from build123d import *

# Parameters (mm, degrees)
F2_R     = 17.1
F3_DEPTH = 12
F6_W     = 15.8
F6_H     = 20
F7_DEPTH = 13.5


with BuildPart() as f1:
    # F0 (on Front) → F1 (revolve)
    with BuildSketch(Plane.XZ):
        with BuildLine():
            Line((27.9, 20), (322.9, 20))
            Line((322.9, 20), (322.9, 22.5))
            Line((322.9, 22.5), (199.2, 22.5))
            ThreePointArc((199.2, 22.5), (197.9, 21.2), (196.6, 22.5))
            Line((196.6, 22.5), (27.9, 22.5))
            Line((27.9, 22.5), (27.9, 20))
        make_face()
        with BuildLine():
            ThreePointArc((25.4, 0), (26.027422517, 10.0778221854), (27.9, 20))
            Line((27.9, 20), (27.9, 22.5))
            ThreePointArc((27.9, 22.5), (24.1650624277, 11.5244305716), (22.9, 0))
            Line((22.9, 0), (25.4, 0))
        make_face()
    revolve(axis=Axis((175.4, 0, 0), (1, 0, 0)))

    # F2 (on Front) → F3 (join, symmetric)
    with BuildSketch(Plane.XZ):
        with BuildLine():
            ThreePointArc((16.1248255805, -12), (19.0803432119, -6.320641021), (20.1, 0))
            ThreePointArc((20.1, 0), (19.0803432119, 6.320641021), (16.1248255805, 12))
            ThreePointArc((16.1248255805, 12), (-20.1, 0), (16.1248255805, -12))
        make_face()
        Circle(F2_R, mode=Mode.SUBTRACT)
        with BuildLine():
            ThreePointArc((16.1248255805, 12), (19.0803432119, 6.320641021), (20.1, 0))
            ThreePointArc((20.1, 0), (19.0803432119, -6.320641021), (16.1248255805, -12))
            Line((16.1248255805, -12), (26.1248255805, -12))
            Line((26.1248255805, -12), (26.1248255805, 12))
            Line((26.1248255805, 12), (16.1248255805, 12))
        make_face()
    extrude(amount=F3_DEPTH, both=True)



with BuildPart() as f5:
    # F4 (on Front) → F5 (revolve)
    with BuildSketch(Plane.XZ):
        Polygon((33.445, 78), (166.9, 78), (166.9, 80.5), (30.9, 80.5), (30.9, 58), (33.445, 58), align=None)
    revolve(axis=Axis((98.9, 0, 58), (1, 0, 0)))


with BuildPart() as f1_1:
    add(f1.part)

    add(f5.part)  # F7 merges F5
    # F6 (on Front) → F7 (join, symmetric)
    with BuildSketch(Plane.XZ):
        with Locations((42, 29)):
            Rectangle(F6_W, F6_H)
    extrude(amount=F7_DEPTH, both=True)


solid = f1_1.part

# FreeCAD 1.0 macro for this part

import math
import FreeCAD as App
import Part
import Sketcher

doc = App.newDocument("Part")
params = doc.addObject("Spreadsheet::Sheet", "Params")
for row, (alias, value) in enumerate([
    ("sketch1_radius", "1.3 mm"),
    ("sketch1_width", "295 mm"),
    ("sketch1_radius2", "81.25 mm"),
    ("sketch1_width2", "123.7 mm"),
    ("sketch1_width3", "2.5 mm"),
    ("revolution_angle", "360 deg"),
    ("sketch2_diameter", "34.2 mm"),
    ("sketch2_radius", "20.1 mm"),
    ("sketch2_width", "10 mm"),
    ("sketch2_height", "24 mm"),
    ("pad1_length", "24 mm"),
    ("sketch3_width", "136 mm"),
    ("sketch3_height", "20 mm"),
    ("sketch3_height2", "2.5 mm"),
    ("revolution2_angle", "360 deg"),
    ("sketch4_height", "20 mm"),
    ("sketch4_width", "15.8 mm"),
    ("pad2_length", "27 mm"),
], start=1):
    params.set(f"A{row}", alias)
    params.set(f"B{row}", "=" + value)
    params.setAlias(f"B{row}", alias)

body = doc.addObject("PartDesign::Body", "Body")

# Sketch on XZ plane
sketch1 = body.newObject("Sketcher::SketchObject", "Sketch")
sketch1.AttachmentSupport = (doc.getObject("XZ_Plane"), [""])
sketch1.MapMode = "FlatFace"
sketch1.addGeometry([
    Part.LineSegment(App.Vector(27.9, 20, 0), App.Vector(322.9, 20, 0)),  # 0
    Part.LineSegment(App.Vector(322.9, 20, 0), App.Vector(322.9, 22.5, 0)),  # 1
    Part.LineSegment(App.Vector(322.9, 22.5, 0), App.Vector(199.2, 22.5, 0)),  # 2
    Part.ArcOfCircle(Part.Circle(App.Vector(197.9, 22.5, 0), App.Vector(0, 0, 1), 1.3), math.radians(180), math.radians(360)),  # 3
    Part.LineSegment(App.Vector(196.6, 22.5, 0), App.Vector(27.9, 22.5, 0)),  # 4
    Part.ArcOfCircle(Part.Circle(App.Vector(76, 0, 0), App.Vector(0, 0, 1), 53.1), math.radians(155), math.radians(180)),  # 5
    Part.LineSegment(App.Vector(22.9, 0, 0), App.Vector(25.4, 0, 0)),  # 6
    Part.ArcOfCircle(Part.Circle(App.Vector(106.6, 0, 0), App.Vector(0, 0, 1), 81.2), math.radians(165.75), math.radians(180)),  # 7
], False)
sketch1.addConstraint([
    Sketcher.Constraint("Coincident", 0, 2, 1, 1),
    Sketcher.Constraint("Coincident", 1, 2, 2, 1),
    Sketcher.Constraint("Coincident", 2, 2, 3, 2),
    Sketcher.Constraint("Coincident", 3, 1, 4, 1),
    Sketcher.Constraint("Coincident", 4, 2, 5, 1),
    Sketcher.Constraint("Coincident", 5, 2, 6, 1),
    Sketcher.Constraint("Coincident", 6, 2, 7, 2),
    Sketcher.Constraint("Coincident", 7, 1, 0, 1),
    Sketcher.Constraint("Horizontal", 0),
    Sketcher.Constraint("Vertical", 1),
    Sketcher.Constraint("Horizontal", 2),
    Sketcher.Constraint("Horizontal", 4),
    Sketcher.Constraint("Horizontal", 6),
    Sketcher.Constraint("PointOnObject", 5, 3, -1),
    Sketcher.Constraint("PointOnObject", 7, 3, -1),
    Sketcher.Constraint("PointOnObject", 5, 2, -1),
    Sketcher.Constraint("Horizontal", 3, 3, 1, 2),
    Sketcher.Constraint("Horizontal", 2, 2, 3, 1),
    Sketcher.Constraint("Vertical", 4, 2, 7, 1),
    Sketcher.Constraint("Equal", 6, 1),
    Sketcher.Constraint("Radius", 3, 1.3),
    Sketcher.Constraint("DistanceX", 0, 1, 0, 2, 295.0),
    Sketcher.Constraint("Radius", 7, 81.25),
    Sketcher.Constraint("DistanceX", 2, 2, 2, 1, 123.7),
    Sketcher.Constraint("DistanceX", 6, 1, 6, 2, 2.5),
    Sketcher.Constraint("DistanceY", -1, 1, 0, 2, 20.0),
    Sketcher.Constraint("DistanceX", -1, 1, 3, 3, 197.9),
])
sketch1.setExpression("Constraints[20]", "Params.sketch1_radius")
sketch1.setExpression("Constraints[21]", "Params.sketch1_width")
sketch1.setExpression("Constraints[22]", "Params.sketch1_radius2")
sketch1.setExpression("Constraints[23]", "Params.sketch1_width2")
sketch1.setExpression("Constraints[24]", "Params.sketch1_width3")
revolution = body.newObject("PartDesign::Revolution", "Revolution")
revolution.Profile = sketch1
revolution.ReferenceAxis = (sketch1, ["H_Axis"])
revolution.setExpression("Angle", "Params.revolution_angle")

# Sketch on XZ plane
sketch2 = body.newObject("Sketcher::SketchObject", "Sketch001")
sketch2.AttachmentSupport = (doc.getObject("XZ_Plane"), [""])
sketch2.MapMode = "FlatFace"
sketch2.addGeometry([
    Part.ArcOfCircle(Part.Circle(App.Vector(0, 0, 0), App.Vector(0, 0, 1), 20), math.radians(37), math.radians(323)),  # 0
    Part.LineSegment(App.Vector(16, -12, 0), App.Vector(26, -12, 0)),  # 1
    Part.LineSegment(App.Vector(26, -12, 0), App.Vector(26, 12, 0)),  # 2
    Part.LineSegment(App.Vector(26, 12, 0), App.Vector(16, 12, 0)),  # 3
    Part.Circle(App.Vector(0, 0, 0), App.Vector(0, 0, 1), 17),  # 4
], False)
sketch2.addConstraint([
    Sketcher.Constraint("Coincident", 0, 2, 1, 1),
    Sketcher.Constraint("Coincident", 1, 2, 2, 1),
    Sketcher.Constraint("Coincident", 2, 2, 3, 1),
    Sketcher.Constraint("Coincident", 3, 2, 0, 1),
    Sketcher.Constraint("Horizontal", 1),
    Sketcher.Constraint("Vertical", 2),
    Sketcher.Constraint("Horizontal", 3),
    Sketcher.Constraint("Coincident", 0, 3, -1, 1),
    Sketcher.Constraint("Coincident", 4, 3, -1, 1),
    Sketcher.Constraint("Vertical", 0, 2, 3, 2),
    Sketcher.Constraint("Diameter", 4, 34.2),
    Sketcher.Constraint("Radius", 0, 20.1),
    Sketcher.Constraint("DistanceX", 1, 1, 1, 2, 10.0),
    Sketcher.Constraint("DistanceY", 2, 1, 2, 2, 24.0),
])
sketch2.setExpression("Constraints[10]", "Params.sketch2_diameter")
sketch2.setExpression("Constraints[11]", "Params.sketch2_radius")
sketch2.setExpression("Constraints[12]", "Params.sketch2_width")
sketch2.setExpression("Constraints[13]", "Params.sketch2_height")
pad1 = body.newObject("PartDesign::Pad", "Pad")
pad1.Profile = sketch2
pad1.setExpression("Length", "Params.pad1_length")
pad1.Midplane = True
body2 = doc.addObject("PartDesign::Body", "Body001")

# Sketch on XZ plane
sketch3 = body2.newObject("Sketcher::SketchObject", "Sketch002")
sketch3.AttachmentSupport = (doc.getObject("XZ_Plane001"), [""])
sketch3.MapMode = "FlatFace"
sketch3.addGeometry([
    Part.LineSegment(App.Vector(33.4, 78, 0), App.Vector(166.9, 78, 0)),  # 0
    Part.LineSegment(App.Vector(166.9, 78, 0), App.Vector(166.9, 80.5, 0)),  # 1
    Part.LineSegment(App.Vector(166.9, 80.5, 0), App.Vector(30.9, 80.5, 0)),  # 2
    Part.LineSegment(App.Vector(30.9, 80.5, 0), App.Vector(30.9, 58, 0)),  # 3
    Part.LineSegment(App.Vector(30.9, 58, 0), App.Vector(33.4, 58, 0)),  # 4
    Part.LineSegment(App.Vector(33.4, 58, 0), App.Vector(33.4, 78, 0)),  # 5
], False)
sketch3.addGeometry(Part.LineSegment(App.Vector(30.9, 58, 0), App.Vector(166.9, 58, 0)), True)  # axis
sketch3.addConstraint([
    Sketcher.Constraint("Coincident", 0, 2, 1, 1),
    Sketcher.Constraint("Coincident", 1, 2, 2, 1),
    Sketcher.Constraint("Coincident", 2, 2, 3, 1),
    Sketcher.Constraint("Coincident", 3, 2, 4, 1),
    Sketcher.Constraint("Coincident", 4, 2, 5, 1),
    Sketcher.Constraint("Coincident", 5, 2, 0, 1),
    Sketcher.Constraint("Horizontal", 0),
    Sketcher.Constraint("Vertical", 1),
    Sketcher.Constraint("Horizontal", 2),
    Sketcher.Constraint("Vertical", 3),
    Sketcher.Constraint("Horizontal", 4),
    Sketcher.Constraint("Vertical", 5),
    Sketcher.Constraint("Horizontal", 6),
    Sketcher.Constraint("Coincident", 6, 1, 3, 2),
    Sketcher.Constraint("Vertical", 1, 2, 6, 2),
    Sketcher.Constraint("DistanceX", 2, 2, 2, 1, 136.0),
    Sketcher.Constraint("DistanceY", 5, 1, 5, 2, 20.0),
    Sketcher.Constraint("DistanceY", 1, 1, 1, 2, 2.5),
    Sketcher.Constraint("DistanceY", -1, 1, 0, 2, 78.0),
    Sketcher.Constraint("DistanceX", -1, 1, 0, 2, 166.9),
    Sketcher.Constraint("DistanceX", 0, 1, 0, 2, 133.455),
])
sketch3.setExpression("Constraints[15]", "Params.sketch3_width")
sketch3.setExpression("Constraints[16]", "Params.sketch3_height")
sketch3.setExpression("Constraints[17]", "Params.sketch3_height2")
revolution2 = body2.newObject("PartDesign::Revolution", "Revolution001")
revolution2.Profile = sketch3
revolution2.ReferenceAxis = (sketch3, ["Axis0"])
revolution2.setExpression("Angle", "Params.revolution2_angle")
body.AllowCompound = True
doc.recompute()

boolean = body.newObject("PartDesign::Boolean", "Boolean")
boolean.Type = "Fuse"
boolean.addObjects([body2])

# Sketch on XZ plane
sketch4 = body.newObject("Sketcher::SketchObject", "Sketch003")
sketch4.AttachmentSupport = (doc.getObject("XZ_Plane"), [""])
sketch4.MapMode = "FlatFace"
sketch4.addGeometry([
    Part.LineSegment(App.Vector(34, 39, 0), App.Vector(34, 19, 0)),
    Part.LineSegment(App.Vector(34, 19, 0), App.Vector(50, 19, 0)),
    Part.LineSegment(App.Vector(50, 19, 0), App.Vector(50, 39, 0)),
    Part.LineSegment(App.Vector(50, 39, 0), App.Vector(34, 39, 0)),
], False)
sketch4.addConstraint([
    Sketcher.Constraint("Coincident", 0, 2, 1, 1),
    Sketcher.Constraint("Coincident", 1, 2, 2, 1),
    Sketcher.Constraint("Coincident", 2, 2, 3, 1),
    Sketcher.Constraint("Coincident", 3, 2, 0, 1),
    Sketcher.Constraint("Vertical", 0),
    Sketcher.Constraint("Horizontal", 1),
    Sketcher.Constraint("Vertical", 2),
    Sketcher.Constraint("Horizontal", 3),
    Sketcher.Constraint("DistanceY", 0, 2, 0, 1, 20.0),
    Sketcher.Constraint("DistanceX", 1, 1, 1, 2, 15.8),
    Sketcher.Constraint("DistanceY", -1, 1, 0, 2, 19.0),
    Sketcher.Constraint("DistanceX", -1, 1, 0, 2, 34.1),
])
sketch4.setExpression("Constraints[8]", "Params.sketch4_height")
sketch4.setExpression("Constraints[9]", "Params.sketch4_width")
pad2 = body.newObject("PartDesign::Pad", "Pad001")
pad2.Profile = sketch4
pad2.setExpression("Length", "Params.pad2_length")
pad2.Midplane = True

doc.recompute()
